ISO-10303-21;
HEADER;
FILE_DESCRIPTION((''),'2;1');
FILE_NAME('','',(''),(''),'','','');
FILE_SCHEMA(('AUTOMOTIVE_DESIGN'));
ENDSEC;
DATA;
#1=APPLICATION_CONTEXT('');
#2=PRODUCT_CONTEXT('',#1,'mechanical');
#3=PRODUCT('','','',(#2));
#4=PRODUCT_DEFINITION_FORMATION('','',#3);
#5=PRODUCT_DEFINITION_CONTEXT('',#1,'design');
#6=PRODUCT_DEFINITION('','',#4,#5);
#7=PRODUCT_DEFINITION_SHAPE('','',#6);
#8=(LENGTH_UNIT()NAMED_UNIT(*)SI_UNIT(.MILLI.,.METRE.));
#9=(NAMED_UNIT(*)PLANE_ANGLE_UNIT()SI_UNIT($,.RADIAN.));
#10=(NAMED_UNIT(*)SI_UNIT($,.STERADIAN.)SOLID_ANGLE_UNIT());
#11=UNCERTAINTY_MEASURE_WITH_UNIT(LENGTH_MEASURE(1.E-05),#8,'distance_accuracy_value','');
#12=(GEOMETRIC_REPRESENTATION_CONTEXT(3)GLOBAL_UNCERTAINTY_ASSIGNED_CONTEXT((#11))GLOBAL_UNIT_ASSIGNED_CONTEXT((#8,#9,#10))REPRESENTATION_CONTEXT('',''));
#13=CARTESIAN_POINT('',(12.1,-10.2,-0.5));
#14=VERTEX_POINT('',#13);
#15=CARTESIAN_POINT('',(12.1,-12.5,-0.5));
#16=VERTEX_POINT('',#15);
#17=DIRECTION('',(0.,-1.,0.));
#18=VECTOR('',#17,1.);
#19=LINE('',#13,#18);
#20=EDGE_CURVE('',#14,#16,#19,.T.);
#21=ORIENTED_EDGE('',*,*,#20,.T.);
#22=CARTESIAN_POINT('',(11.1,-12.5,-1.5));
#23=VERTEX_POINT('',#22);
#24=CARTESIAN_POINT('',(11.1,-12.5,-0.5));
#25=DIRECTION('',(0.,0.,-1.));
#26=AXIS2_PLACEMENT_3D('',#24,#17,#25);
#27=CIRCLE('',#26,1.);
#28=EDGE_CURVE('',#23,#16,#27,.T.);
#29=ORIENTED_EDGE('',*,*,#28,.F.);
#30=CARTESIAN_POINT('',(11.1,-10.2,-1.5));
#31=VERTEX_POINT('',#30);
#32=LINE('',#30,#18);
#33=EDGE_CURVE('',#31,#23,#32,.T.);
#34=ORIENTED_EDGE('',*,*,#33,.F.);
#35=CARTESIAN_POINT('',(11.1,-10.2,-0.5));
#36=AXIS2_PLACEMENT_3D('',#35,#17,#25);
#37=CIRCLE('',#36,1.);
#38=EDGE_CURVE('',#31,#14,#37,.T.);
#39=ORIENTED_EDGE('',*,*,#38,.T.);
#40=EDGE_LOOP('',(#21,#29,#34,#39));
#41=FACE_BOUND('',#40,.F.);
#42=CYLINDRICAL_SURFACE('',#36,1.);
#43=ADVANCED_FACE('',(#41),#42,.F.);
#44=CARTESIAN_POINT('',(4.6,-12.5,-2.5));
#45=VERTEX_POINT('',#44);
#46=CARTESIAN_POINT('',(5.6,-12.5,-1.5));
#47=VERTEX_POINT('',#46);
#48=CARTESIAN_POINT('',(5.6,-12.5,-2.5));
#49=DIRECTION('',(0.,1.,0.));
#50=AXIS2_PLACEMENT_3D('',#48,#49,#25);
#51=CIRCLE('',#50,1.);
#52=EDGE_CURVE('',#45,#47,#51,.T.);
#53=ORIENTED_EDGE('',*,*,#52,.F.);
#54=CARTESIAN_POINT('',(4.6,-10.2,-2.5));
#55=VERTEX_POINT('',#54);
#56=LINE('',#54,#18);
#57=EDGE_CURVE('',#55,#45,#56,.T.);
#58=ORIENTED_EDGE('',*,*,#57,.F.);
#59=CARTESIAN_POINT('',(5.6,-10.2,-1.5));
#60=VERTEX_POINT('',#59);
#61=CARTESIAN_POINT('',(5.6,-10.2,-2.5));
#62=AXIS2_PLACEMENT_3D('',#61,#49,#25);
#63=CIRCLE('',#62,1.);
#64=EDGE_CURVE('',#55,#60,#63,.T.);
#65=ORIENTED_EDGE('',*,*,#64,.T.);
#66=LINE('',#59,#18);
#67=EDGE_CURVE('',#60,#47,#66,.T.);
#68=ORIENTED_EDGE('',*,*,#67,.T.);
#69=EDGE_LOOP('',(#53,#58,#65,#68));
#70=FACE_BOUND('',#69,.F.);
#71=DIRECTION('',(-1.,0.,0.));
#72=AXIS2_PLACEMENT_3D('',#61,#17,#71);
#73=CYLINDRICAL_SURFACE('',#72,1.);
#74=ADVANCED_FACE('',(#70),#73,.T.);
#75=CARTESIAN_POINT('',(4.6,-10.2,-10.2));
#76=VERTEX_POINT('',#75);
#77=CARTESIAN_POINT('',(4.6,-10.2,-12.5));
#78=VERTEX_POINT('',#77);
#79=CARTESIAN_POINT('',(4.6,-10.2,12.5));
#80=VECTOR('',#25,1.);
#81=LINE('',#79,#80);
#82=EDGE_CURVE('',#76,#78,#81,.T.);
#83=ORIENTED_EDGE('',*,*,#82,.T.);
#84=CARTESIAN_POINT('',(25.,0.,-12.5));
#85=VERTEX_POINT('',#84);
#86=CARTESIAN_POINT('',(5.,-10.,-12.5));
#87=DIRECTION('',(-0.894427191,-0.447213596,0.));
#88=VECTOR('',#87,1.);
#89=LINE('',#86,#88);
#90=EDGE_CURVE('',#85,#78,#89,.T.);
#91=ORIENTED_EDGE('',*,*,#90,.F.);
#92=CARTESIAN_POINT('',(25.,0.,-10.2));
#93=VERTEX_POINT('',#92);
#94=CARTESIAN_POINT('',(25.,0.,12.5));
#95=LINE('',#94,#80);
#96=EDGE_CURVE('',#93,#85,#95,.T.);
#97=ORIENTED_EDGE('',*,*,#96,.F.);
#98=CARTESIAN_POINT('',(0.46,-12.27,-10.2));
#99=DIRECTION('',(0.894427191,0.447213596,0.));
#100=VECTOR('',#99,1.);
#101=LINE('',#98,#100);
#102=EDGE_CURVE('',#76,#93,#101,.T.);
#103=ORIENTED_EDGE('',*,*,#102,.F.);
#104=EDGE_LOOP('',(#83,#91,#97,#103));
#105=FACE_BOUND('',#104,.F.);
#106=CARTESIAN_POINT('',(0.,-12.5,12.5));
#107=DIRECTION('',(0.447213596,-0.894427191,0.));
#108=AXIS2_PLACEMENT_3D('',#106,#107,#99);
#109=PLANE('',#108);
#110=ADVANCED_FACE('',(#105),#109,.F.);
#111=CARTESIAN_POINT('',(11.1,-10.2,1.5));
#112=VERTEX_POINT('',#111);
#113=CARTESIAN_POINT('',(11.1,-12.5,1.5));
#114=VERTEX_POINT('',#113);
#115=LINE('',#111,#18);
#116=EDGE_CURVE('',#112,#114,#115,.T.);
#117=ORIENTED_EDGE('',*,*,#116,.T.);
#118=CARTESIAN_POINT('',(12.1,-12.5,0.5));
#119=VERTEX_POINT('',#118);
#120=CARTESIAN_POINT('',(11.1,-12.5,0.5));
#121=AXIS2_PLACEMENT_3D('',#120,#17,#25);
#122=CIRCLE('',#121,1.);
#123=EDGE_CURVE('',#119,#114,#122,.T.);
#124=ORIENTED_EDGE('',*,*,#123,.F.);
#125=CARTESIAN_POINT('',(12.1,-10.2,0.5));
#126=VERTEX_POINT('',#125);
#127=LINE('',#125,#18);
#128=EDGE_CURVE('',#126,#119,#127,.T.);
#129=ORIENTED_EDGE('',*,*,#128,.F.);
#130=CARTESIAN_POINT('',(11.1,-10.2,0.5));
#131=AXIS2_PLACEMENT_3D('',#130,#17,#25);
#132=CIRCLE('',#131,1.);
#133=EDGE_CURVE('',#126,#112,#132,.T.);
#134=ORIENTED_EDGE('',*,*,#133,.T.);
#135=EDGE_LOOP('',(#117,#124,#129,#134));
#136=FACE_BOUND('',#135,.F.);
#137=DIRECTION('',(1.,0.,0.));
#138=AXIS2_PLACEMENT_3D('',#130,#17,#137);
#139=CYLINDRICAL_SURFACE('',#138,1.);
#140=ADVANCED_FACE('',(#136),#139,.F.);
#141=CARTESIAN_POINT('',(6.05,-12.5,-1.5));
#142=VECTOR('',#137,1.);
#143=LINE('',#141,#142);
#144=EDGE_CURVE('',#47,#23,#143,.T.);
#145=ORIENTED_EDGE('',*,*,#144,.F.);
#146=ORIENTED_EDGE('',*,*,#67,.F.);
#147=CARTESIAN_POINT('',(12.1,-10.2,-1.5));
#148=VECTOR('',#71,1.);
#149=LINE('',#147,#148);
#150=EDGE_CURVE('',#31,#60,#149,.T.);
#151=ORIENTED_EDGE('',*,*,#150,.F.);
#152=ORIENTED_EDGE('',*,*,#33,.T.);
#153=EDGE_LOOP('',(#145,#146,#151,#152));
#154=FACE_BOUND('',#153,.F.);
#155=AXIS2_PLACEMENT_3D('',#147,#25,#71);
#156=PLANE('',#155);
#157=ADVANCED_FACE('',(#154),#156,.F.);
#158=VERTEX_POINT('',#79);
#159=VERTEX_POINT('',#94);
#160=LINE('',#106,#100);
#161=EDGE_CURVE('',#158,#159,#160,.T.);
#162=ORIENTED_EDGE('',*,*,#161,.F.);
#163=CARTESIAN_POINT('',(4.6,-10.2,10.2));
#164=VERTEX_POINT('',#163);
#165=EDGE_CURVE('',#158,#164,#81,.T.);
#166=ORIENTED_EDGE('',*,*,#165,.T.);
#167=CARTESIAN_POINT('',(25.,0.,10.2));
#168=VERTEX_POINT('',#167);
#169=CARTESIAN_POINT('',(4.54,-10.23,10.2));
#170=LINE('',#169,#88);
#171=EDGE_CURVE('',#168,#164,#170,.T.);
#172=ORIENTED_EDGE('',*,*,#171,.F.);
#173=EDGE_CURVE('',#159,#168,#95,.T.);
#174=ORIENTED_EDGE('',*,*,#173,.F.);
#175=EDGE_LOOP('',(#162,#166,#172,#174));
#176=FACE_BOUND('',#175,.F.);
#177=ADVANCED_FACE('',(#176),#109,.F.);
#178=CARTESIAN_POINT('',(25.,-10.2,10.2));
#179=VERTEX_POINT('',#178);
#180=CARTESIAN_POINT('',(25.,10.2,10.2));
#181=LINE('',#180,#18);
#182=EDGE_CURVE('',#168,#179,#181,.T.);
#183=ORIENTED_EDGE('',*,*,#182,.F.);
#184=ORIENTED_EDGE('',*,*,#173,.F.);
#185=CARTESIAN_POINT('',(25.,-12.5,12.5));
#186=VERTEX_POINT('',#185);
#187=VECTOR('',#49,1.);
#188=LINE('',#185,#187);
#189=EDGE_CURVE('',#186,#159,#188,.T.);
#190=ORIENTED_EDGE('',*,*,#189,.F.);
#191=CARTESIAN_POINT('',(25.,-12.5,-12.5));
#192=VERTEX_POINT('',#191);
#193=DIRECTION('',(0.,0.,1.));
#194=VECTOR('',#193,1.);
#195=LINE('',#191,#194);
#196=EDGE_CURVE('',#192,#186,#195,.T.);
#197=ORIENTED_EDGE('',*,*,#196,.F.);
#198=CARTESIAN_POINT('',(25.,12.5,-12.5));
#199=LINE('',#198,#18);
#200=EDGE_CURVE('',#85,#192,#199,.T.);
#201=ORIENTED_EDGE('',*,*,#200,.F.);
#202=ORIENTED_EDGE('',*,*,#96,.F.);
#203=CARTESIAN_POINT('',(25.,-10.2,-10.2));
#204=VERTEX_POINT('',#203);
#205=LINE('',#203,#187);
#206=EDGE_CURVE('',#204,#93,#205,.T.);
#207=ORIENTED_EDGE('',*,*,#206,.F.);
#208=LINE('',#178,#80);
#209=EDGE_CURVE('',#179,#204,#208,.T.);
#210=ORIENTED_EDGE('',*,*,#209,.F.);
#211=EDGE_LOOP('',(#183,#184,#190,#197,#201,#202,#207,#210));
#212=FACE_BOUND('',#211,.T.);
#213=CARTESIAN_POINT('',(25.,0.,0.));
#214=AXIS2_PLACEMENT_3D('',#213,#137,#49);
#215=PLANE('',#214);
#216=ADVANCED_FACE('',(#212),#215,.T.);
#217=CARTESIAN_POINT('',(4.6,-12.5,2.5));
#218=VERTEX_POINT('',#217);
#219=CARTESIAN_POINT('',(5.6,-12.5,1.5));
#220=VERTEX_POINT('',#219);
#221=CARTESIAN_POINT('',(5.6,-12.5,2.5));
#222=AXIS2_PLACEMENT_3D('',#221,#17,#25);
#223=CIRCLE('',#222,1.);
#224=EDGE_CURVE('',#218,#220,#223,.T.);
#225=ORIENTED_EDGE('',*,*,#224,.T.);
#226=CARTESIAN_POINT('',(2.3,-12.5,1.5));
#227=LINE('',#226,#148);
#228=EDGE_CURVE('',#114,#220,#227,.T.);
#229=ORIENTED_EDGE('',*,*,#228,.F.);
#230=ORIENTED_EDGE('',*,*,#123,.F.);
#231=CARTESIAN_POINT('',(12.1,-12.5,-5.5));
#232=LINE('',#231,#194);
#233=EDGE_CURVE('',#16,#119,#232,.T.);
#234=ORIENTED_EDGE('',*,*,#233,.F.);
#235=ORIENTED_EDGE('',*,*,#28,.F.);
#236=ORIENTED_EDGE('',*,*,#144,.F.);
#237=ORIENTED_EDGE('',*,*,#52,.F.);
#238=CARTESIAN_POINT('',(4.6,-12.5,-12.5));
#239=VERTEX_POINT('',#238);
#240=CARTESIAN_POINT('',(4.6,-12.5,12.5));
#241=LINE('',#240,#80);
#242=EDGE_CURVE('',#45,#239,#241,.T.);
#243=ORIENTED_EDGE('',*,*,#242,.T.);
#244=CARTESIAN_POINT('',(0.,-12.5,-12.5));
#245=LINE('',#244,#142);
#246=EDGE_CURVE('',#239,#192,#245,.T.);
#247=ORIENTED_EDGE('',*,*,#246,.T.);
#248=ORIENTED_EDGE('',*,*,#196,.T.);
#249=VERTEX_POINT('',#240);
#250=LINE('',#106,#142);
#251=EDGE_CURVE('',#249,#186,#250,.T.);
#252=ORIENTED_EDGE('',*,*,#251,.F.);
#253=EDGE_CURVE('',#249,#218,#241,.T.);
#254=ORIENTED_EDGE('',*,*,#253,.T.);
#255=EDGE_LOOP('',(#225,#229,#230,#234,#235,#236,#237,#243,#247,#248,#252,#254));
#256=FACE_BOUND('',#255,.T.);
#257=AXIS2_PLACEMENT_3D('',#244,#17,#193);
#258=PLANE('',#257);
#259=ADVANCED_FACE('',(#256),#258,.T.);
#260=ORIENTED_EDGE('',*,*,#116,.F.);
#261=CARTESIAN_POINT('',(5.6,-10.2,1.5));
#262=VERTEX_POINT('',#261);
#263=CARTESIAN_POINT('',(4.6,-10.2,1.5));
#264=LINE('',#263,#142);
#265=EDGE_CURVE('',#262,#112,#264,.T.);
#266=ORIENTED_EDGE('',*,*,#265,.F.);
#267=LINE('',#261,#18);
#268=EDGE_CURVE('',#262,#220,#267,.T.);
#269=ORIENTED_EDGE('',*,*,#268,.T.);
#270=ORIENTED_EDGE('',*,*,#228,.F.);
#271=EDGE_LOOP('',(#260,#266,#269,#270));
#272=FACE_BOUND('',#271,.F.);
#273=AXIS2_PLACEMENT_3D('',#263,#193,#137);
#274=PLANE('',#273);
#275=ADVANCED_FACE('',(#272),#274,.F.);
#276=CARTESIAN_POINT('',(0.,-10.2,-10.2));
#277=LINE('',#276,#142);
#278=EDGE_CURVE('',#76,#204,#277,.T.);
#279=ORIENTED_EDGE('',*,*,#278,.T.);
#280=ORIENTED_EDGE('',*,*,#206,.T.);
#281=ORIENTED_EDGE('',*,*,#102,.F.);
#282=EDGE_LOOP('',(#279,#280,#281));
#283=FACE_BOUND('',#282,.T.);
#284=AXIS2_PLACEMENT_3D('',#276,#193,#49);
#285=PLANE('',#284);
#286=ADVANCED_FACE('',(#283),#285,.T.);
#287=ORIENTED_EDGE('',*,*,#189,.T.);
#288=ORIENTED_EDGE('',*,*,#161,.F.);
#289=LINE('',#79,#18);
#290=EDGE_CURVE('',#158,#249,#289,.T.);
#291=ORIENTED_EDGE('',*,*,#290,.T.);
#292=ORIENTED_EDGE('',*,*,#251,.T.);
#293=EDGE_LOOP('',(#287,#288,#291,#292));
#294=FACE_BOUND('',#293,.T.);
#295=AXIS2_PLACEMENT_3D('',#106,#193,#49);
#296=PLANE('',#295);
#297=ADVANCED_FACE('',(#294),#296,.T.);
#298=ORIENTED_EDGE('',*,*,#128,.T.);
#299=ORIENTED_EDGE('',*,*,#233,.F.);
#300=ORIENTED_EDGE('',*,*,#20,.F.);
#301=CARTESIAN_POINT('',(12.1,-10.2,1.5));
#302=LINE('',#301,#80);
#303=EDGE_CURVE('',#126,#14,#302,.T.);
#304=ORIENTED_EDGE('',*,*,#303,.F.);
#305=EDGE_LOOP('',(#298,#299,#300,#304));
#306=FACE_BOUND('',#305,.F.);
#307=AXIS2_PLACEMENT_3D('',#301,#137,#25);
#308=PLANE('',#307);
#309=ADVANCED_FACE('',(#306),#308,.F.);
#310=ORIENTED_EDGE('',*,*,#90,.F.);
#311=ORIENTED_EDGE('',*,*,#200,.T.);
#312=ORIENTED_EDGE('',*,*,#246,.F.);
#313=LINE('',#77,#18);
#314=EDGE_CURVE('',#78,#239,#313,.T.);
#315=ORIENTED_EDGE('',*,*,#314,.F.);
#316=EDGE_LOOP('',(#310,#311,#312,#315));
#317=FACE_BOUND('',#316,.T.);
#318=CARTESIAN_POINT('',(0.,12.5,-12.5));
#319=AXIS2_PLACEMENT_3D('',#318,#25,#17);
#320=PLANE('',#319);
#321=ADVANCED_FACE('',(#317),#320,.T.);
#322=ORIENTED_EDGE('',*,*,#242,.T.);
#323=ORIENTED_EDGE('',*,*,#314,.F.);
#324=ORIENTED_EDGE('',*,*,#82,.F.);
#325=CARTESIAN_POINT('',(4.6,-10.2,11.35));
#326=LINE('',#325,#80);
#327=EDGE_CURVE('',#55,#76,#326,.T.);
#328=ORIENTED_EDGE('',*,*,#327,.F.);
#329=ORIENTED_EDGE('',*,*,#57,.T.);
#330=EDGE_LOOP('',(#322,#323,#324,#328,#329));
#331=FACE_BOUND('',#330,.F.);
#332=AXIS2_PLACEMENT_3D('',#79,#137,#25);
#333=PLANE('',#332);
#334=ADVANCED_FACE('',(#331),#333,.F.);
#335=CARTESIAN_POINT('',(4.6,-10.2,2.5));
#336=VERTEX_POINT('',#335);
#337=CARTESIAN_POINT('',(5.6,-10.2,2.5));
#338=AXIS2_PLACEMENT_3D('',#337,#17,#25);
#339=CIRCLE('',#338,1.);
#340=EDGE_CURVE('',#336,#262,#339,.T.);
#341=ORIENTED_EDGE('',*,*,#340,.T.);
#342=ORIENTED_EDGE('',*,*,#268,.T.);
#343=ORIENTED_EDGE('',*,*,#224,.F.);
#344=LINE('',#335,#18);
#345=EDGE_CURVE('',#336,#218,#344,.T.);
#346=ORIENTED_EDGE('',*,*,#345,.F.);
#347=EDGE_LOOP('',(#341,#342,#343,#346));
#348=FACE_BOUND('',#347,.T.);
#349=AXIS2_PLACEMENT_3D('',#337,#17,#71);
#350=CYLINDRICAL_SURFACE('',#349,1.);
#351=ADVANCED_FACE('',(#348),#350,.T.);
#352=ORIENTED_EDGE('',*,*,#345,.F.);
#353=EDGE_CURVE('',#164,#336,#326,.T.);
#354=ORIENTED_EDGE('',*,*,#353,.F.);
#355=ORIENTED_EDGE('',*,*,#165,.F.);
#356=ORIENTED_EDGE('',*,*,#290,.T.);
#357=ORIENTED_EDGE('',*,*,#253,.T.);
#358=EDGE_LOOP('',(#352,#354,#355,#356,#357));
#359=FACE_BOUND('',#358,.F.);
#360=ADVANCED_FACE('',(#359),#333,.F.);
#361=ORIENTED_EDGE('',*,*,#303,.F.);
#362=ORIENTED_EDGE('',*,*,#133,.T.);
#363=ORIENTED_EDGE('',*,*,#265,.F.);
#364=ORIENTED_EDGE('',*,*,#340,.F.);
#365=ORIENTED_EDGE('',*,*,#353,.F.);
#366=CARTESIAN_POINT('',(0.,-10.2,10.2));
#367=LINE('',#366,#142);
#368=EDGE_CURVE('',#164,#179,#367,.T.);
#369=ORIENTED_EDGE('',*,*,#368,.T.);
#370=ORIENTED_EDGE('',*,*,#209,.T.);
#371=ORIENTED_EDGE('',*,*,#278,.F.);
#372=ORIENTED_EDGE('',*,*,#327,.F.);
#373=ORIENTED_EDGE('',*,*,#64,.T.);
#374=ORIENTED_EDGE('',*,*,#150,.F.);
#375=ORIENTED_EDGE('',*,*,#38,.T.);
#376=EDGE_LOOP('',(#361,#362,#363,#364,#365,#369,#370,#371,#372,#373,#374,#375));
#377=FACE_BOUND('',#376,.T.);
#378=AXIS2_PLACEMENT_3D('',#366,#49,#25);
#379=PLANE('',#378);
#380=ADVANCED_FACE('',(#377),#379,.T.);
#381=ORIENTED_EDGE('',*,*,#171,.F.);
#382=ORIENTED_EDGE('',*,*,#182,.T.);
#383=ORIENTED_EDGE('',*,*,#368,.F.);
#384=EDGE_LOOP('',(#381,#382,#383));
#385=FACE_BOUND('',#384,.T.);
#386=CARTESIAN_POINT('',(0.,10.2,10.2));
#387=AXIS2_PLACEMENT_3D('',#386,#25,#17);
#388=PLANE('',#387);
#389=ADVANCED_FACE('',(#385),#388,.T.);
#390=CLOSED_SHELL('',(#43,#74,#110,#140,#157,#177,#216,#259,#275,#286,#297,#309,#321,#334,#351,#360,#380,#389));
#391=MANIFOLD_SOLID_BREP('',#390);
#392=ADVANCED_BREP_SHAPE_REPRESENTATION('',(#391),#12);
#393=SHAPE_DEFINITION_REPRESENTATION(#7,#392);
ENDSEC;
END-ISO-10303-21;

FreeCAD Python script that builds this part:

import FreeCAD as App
import Part
import Sketcher

V = App.Vector
Q = App.Units.Quantity


def edges_at(feature, points):
    """Names of the edges that pass closest to the given points."""
    edges = feature.Shape.Edges
    near = lambda p: min(range(len(edges)), key=lambda i: edges[i].distToShape(Part.Vertex(*p))[0])
    return sorted({f"Edge{near(p) + 1}" for p in points})


def add_polygon(sketch, points):
    """Adds a closed chain of lines whose ends are joined by coincident constraints."""
    first, n = sketch.GeometryCount, len(points)
    for a, b in zip(points, points[1:] + points[:1]):
        sketch.addGeometry(Part.LineSegment(App.Vector(*a, 0), App.Vector(*b, 0)), False)
    for i in range(n):
        sketch.addConstraint(Sketcher.Constraint("Coincident", first + i, 2, first + (i + 1) % n, 1))

doc = App.newDocument("Part")
body = doc.addObject("PartDesign::Body", "Body")

# Sketch on YZ plane
sketch1 = body.newObject("Sketcher::SketchObject", "Sketch")
sketch1.AttachmentSupport = (doc.getObject("YZ_Plane"), [""])
sketch1.MapMode = "FlatFace"
add_polygon(sketch1, [(12.5, 12.5), (-12.5, 12.5), (-12.5, -12.5), (12.5, -12.5)])  # lines 0-3
add_polygon(sketch1, [(-10.2, 10.2), (10.2, 10.2), (10.2, -10.2), (-10.2, -10.2)])  # lines 4-7
sketch1.addConstraint(Sketcher.Constraint("Horizontal", 0))
sketch1.addConstraint(Sketcher.Constraint("Vertical", 1))
sketch1.addConstraint(Sketcher.Constraint("Horizontal", 2))
sketch1.addConstraint(Sketcher.Constraint("Vertical", 3))
sketch1.addConstraint(Sketcher.Constraint("Horizontal", 4))
sketch1.addConstraint(Sketcher.Constraint("Vertical", 5))
sketch1.addConstraint(Sketcher.Constraint("Horizontal", 6))
sketch1.addConstraint(Sketcher.Constraint("Vertical", 7))
sketch1.addConstraint(Sketcher.Constraint("Symmetric", 0, 2, 2, 2, -1, 1))
sketch1.addConstraint(Sketcher.Constraint("Symmetric", 4, 2, 6, 2, -1, 1))
sketch1.addConstraint(Sketcher.Constraint("Equal", 2, 1))
sketch1.addConstraint(Sketcher.Constraint("Equal", 6, 5))
sketch1.addConstraint(Sketcher.Constraint("DistanceX", 0, 2, 0, 1, Q("25 mm")))
sketch1.addConstraint(Sketcher.Constraint("DistanceX", 4, 2, 3, 2, Q("2.3 mm")))
pad1 = body.newObject("PartDesign::Pad", "Pad")
pad1.Profile = sketch1
pad1.Length = 25

# Sketch on XY plane
sketch2 = body.newObject("Sketcher::SketchObject", "Sketch001")
sketch2.AttachmentSupport = (doc.getObject("XY_Plane"), [""])
sketch2.MapMode = "FlatFace"
sketch2.AttachmentOffset = App.Placement(V(0, 0, 12.5), App.Rotation())
add_polygon(sketch2, [(25, 0), (25, 12.5), (0, 12.5), (0, 0)])  # lines 0-3
sketch2.addConstraint(Sketcher.Constraint("Vertical", 0))
sketch2.addConstraint(Sketcher.Constraint("Horizontal", 1))
sketch2.addConstraint(Sketcher.Constraint("Vertical", 2))
sketch2.addConstraint(Sketcher.Constraint("Horizontal", 3))
sketch2.addConstraint(Sketcher.Constraint("Coincident", 2, 2, -1, 1))
sketch2.addConstraint(Sketcher.Constraint("DistanceX", 1, 2, 1, 1, Q("25 mm")))
sketch2.addConstraint(Sketcher.Constraint("DistanceY", 0, 1, 0, 2, Q("12.5 mm")))
pocket1 = body.newObject("PartDesign::Pocket", "Pocket")
pocket1.Profile = sketch2
pocket1.Type = "ThroughAll"

# Sketch on XY plane
sketch3 = body.newObject("Sketcher::SketchObject", "Sketch002")
sketch3.AttachmentSupport = (doc.getObject("XY_Plane"), [""])
sketch3.MapMode = "FlatFace"
sketch3.AttachmentOffset = App.Placement(V(0, 0, 12.5), App.Rotation())
add_polygon(sketch3, [(0, 0), (0, -12.5), (25, 0)])  # lines 0-2
sketch3.addConstraint(Sketcher.Constraint("Vertical", 0))
sketch3.addConstraint(Sketcher.Constraint("Horizontal", 2))
sketch3.addConstraint(Sketcher.Constraint("Coincident", 2, 2, -1, 1))
sketch3.addConstraint(Sketcher.Constraint("DistanceX", 2, 2, 2, 1, Q("25 mm")))
sketch3.addConstraint(Sketcher.Constraint("DistanceY", 0, 2, 0, 1, Q("12.5 mm")))
pocket2 = body.newObject("PartDesign::Pocket", "Pocket001")
pocket2.Profile = sketch3
pocket2.Type = "ThroughAll"

# Sketch on XZ plane
sketch4 = body.newObject("Sketcher::SketchObject", "Sketch003")
sketch4.AttachmentSupport = (doc.getObject("XZ_Plane"), [""])
sketch4.MapMode = "FlatFace"
sketch4.AttachmentOffset = App.Placement(V(0, 0, 10.2), App.Rotation())
add_polygon(sketch4, [(0, -12.5), (0, 12.5), (4.6, 12.5), (4.6, -12.5)])  # lines 0-3
sketch4.addConstraint(Sketcher.Constraint("Vertical", 0))
sketch4.addConstraint(Sketcher.Constraint("Horizontal", 1))
sketch4.addConstraint(Sketcher.Constraint("Vertical", 2))
sketch4.addConstraint(Sketcher.Constraint("Horizontal", 3))
sketch4.addConstraint(Sketcher.Constraint("Symmetric", 0, 2, 3, 2, -1, 1))
sketch4.addConstraint(Sketcher.Constraint("DistanceY", 0, 1, 0, 2, Q("25 mm")))
sketch4.addConstraint(Sketcher.Constraint("DistanceX", 1, 1, 1, 2, Q("4.6 mm")))
pocket3 = body.newObject("PartDesign::Pocket", "Pocket002")
pocket3.Profile = sketch4
pocket3.Length = 10
pocket3.Reversed = True

# Sketch on XZ plane
sketch5 = body.newObject("Sketcher::SketchObject", "Sketch004")
sketch5.AttachmentSupport = (doc.getObject("XZ_Plane"), [""])
sketch5.MapMode = "FlatFace"
sketch5.AttachmentOffset = App.Placement(V(0, 0, 10.2), App.Rotation())
add_polygon(sketch5, [(4.6, -1.5), (4.6, 1.5), (12.1, 1.5), (12.1, -1.5)])  # lines 0-3
sketch5.addConstraint(Sketcher.Constraint("Vertical", 0))
sketch5.addConstraint(Sketcher.Constraint("Horizontal", 1))
sketch5.addConstraint(Sketcher.Constraint("Vertical", 2))
sketch5.addConstraint(Sketcher.Constraint("Horizontal", 3))
sketch5.addConstraint(Sketcher.Constraint("DistanceY", 0, 1, 0, 2, Q("3 mm")))
sketch5.addConstraint(Sketcher.Constraint("DistanceX", 1, 1, 1, 2, Q("7.5 mm")))
sketch5.addConstraint(Sketcher.Constraint("DistanceX", -1, 1, 0, 2, Q("4.6 mm")))
sketch5.addConstraint(Sketcher.Constraint("DistanceY", -1, 1, 0, 2, Q("1.5 mm")))
pocket4 = body.newObject("PartDesign::Pocket", "Pocket003")
pocket4.Profile = sketch5
pocket4.Length = 10
pocket4.Reversed = True
doc.recompute()

fillet = body.newObject("PartDesign::Fillet", "Fillet")
fillet.Base = (pocket4, edges_at(pocket4, [
    (4.6, -11.35, -1.5),
    (4.6, -11.35, 1.5),
    (12.1, -11.35, -1.5),
    (12.1, -11.35, 1.5),
]))
fillet.Radius = 1

doc.recompute()
